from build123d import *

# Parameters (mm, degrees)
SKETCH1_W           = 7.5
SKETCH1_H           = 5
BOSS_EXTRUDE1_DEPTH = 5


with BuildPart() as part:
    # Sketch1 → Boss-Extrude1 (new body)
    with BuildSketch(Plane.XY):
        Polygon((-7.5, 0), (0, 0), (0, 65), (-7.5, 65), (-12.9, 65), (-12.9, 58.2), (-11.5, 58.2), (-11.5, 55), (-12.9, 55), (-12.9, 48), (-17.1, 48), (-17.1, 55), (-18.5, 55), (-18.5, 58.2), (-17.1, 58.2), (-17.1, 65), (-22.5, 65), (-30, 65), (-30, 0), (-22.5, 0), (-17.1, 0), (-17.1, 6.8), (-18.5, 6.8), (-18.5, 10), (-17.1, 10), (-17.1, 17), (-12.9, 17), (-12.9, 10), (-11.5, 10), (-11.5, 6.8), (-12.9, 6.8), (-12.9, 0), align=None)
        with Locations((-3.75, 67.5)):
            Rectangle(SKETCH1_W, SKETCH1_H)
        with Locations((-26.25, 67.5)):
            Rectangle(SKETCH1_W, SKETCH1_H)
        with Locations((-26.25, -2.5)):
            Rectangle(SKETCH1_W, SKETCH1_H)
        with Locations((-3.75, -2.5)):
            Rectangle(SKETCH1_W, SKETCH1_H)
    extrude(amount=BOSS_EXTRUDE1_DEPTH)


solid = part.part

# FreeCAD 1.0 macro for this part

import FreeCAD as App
import Part
import Sketcher

V = App.Vector


def add_polygon(sketch, points):
    """Adds a closed chain of lines whose ends are joined by coincident constraints."""
    first, n = sketch.GeometryCount, len(points)
    for a, b in zip(points, points[1:] + points[:1]):
        sketch.addGeometry(Part.LineSegment(App.Vector(*a, 0), App.Vector(*b, 0)), False)
    for i in range(n):
        sketch.addConstraint(Sketcher.Constraint("Coincident", first + i, 2, first + (i + 1) % n, 1))

doc = App.newDocument("Part")
params = doc.addObject("Spreadsheet::Sheet", "Params")
for row, (alias, value) in enumerate([
    ("sketch1_height", "5 mm"),
    ("sketch1_height2", "7 mm"),
    ("sketch1_height3", "75 mm"),
    ("sketch1_width", "7.5 mm"),
    ("sketch1_width2", "5.4 mm"),
    ("pad1_length", "5 mm"),
], start=1):
    params.set(f"A{row}", alias)
    params.set(f"B{row}", "=" + value)
    params.setAlias(f"B{row}", alias)

body = doc.addObject("PartDesign::Body", "Body")

# Sketch on XY plane
sketch1 = doc.addObject("Sketcher::SketchObject", "Sketch")
body.addObject(sketch1)
sketch1.AttachmentSupport = (doc.XY_Plane, [""])
sketch1.MapMode = "FlatFace"
add_polygon(sketch1, [(0, 70), (-7.5, 70), (-7.5, 65), (-12.9, 65), (-12.9, 58.2), (-11.5, 58.2), (-11.5, 55), (-12.9, 55), (-12.9, 48), (-17.1, 48), (-17.1, 55), (-18.5, 55), (-18.5, 58.2), (-17.1, 58.2), (-17.1, 65), (-22.5, 65), (-22.5, 70), (-30, 70), (-30, -5), (-22.5, -5), (-22.5, 0), (-17.1, 0), (-17.1, 6.8), (-18.5, 6.8), (-18.5, 10), (-17.1, 10), (-17.1, 17), (-12.9, 17), (-12.9, 10), (-11.5, 10), (-11.5, 6.8), (-12.9, 6.8), (-12.9, 0), (-7.5, 0), (-7.5, -5), (0, -5)])  # lines 0-35
sketch1.addConstraint([
    Sketcher.Constraint("Horizontal", 0),
    Sketcher.Constraint("Vertical", 1),
    Sketcher.Constraint("Horizontal", 2),
    Sketcher.Constraint("Vertical", 3),
    Sketcher.Constraint("Horizontal", 4),
    Sketcher.Constraint("Vertical", 5),
    Sketcher.Constraint("Horizontal", 6),
    Sketcher.Constraint("Vertical", 7),
    Sketcher.Constraint("Horizontal", 8),
    Sketcher.Constraint("Vertical", 9),
    Sketcher.Constraint("Horizontal", 10),
    Sketcher.Constraint("Vertical", 11),
    Sketcher.Constraint("Horizontal", 12),
    Sketcher.Constraint("Vertical", 13),
    Sketcher.Constraint("Horizontal", 14),
    Sketcher.Constraint("Vertical", 15),
    Sketcher.Constraint("Horizontal", 16),
    Sketcher.Constraint("Vertical", 17),
    Sketcher.Constraint("Horizontal", 18),
    Sketcher.Constraint("Vertical", 19),
    Sketcher.Constraint("Horizontal", 20),
    Sketcher.Constraint("Vertical", 21),
    Sketcher.Constraint("Horizontal", 22),
    Sketcher.Constraint("Vertical", 23),
    Sketcher.Constraint("Horizontal", 24),
    Sketcher.Constraint("Vertical", 25),
    Sketcher.Constraint("Horizontal", 26),
    Sketcher.Constraint("Vertical", 27),
    Sketcher.Constraint("Horizontal", 28),
    Sketcher.Constraint("Vertical", 29),
    Sketcher.Constraint("Horizontal", 30),
    Sketcher.Constraint("Vertical", 31),
    Sketcher.Constraint("Horizontal", 32),
    Sketcher.Constraint("Vertical", 33),
    Sketcher.Constraint("Horizontal", 34),
    Sketcher.Constraint("Vertical", 35),
    Sketcher.Constraint("PointOnObject", 19, 2, -1),
    Sketcher.Constraint("PointOnObject", 31, 2, -1),
    Sketcher.Constraint("PointOnObject", 34, 2, -2),
    Sketcher.Constraint("Horizontal", 6, 2, 9, 2),
    Sketcher.Constraint("Horizontal", 4, 2, 11, 2),
    Sketcher.Constraint("Horizontal", 2, 2, 13, 2),
    Sketcher.Constraint("Horizontal", 0, 2, 15, 2),
    Sketcher.Constraint("Horizontal", 24, 2, 27, 2),
    Sketcher.Constraint("Horizontal", 22, 2, 29, 2),
    Sketcher.Constraint("Horizontal", 18, 2, 33, 2),
    Sketcher.Constraint("Vertical", 3, 2, 6, 2),
    Sketcher.Constraint("Vertical", 9, 2, 12, 2),
    Sketcher.Constraint("Vertical", 15, 2, 18, 2),
    Sketcher.Constraint("Vertical", 13, 2, 20, 2),
    Sketcher.Constraint("Vertical", 11, 2, 22, 2),
    Sketcher.Constraint("Vertical", 21, 2, 24, 2),
    Sketcher.Constraint("Vertical", 7, 2, 26, 2),
    Sketcher.Constraint("Vertical", 5, 2, 28, 2),
    Sketcher.Constraint("Vertical", 27, 2, 30, 2),
    Sketcher.Constraint("Vertical", 1, 2, 32, 2),
    Sketcher.Constraint("Equal", 6, 10),
    Sketcher.Constraint("Equal", 2, 14),
    Sketcher.Constraint("Equal", 0, 16),
    Sketcher.Constraint("Equal", 15, 19),
    Sketcher.Constraint("Equal", 13, 21),
    Sketcher.Constraint("Equal", 11, 23),
    Sketcher.Constraint("Equal", 9, 25),
    Sketcher.Constraint("DistanceY", 1, 2, 1, 1, 5.0),
    Sketcher.Constraint("DistanceY", 7, 2, 7, 1, 7.0),
    Sketcher.Constraint("DistanceY", 17, 2, 17, 1, 75.0),
    Sketcher.Constraint("DistanceX", 0, 2, 0, 1, 7.5),
    Sketcher.Constraint("DistanceX", 2, 2, 2, 1, 5.4),
    Sketcher.Constraint("DistanceX", 4, 1, 4, 2, 1.4),
    Sketcher.Constraint("DistanceX", 8, 2, 8, 1, 4.2),
    Sketcher.Constraint("DistanceY", 3, 2, 3, 1, 6.8),
    Sketcher.Constraint("DistanceY", 5, 2, 5, 1, 3.2),
])
sketch1.setExpression("Constraints[99]", "Params.sketch1_height")
sketch1.setExpression("Constraints[100]", "Params.sketch1_height2")
sketch1.setExpression("Constraints[101]", "Params.sketch1_height3")
sketch1.setExpression("Constraints[102]", "Params.sketch1_width")
sketch1.setExpression("Constraints[103]", "Params.sketch1_width2")
pad1 = doc.addObject("PartDesign::Pad", "Pad")
body.addObject(pad1)
pad1.Profile = sketch1
pad1.setExpression("Length", "Params.pad1_length")

doc.recompute()
